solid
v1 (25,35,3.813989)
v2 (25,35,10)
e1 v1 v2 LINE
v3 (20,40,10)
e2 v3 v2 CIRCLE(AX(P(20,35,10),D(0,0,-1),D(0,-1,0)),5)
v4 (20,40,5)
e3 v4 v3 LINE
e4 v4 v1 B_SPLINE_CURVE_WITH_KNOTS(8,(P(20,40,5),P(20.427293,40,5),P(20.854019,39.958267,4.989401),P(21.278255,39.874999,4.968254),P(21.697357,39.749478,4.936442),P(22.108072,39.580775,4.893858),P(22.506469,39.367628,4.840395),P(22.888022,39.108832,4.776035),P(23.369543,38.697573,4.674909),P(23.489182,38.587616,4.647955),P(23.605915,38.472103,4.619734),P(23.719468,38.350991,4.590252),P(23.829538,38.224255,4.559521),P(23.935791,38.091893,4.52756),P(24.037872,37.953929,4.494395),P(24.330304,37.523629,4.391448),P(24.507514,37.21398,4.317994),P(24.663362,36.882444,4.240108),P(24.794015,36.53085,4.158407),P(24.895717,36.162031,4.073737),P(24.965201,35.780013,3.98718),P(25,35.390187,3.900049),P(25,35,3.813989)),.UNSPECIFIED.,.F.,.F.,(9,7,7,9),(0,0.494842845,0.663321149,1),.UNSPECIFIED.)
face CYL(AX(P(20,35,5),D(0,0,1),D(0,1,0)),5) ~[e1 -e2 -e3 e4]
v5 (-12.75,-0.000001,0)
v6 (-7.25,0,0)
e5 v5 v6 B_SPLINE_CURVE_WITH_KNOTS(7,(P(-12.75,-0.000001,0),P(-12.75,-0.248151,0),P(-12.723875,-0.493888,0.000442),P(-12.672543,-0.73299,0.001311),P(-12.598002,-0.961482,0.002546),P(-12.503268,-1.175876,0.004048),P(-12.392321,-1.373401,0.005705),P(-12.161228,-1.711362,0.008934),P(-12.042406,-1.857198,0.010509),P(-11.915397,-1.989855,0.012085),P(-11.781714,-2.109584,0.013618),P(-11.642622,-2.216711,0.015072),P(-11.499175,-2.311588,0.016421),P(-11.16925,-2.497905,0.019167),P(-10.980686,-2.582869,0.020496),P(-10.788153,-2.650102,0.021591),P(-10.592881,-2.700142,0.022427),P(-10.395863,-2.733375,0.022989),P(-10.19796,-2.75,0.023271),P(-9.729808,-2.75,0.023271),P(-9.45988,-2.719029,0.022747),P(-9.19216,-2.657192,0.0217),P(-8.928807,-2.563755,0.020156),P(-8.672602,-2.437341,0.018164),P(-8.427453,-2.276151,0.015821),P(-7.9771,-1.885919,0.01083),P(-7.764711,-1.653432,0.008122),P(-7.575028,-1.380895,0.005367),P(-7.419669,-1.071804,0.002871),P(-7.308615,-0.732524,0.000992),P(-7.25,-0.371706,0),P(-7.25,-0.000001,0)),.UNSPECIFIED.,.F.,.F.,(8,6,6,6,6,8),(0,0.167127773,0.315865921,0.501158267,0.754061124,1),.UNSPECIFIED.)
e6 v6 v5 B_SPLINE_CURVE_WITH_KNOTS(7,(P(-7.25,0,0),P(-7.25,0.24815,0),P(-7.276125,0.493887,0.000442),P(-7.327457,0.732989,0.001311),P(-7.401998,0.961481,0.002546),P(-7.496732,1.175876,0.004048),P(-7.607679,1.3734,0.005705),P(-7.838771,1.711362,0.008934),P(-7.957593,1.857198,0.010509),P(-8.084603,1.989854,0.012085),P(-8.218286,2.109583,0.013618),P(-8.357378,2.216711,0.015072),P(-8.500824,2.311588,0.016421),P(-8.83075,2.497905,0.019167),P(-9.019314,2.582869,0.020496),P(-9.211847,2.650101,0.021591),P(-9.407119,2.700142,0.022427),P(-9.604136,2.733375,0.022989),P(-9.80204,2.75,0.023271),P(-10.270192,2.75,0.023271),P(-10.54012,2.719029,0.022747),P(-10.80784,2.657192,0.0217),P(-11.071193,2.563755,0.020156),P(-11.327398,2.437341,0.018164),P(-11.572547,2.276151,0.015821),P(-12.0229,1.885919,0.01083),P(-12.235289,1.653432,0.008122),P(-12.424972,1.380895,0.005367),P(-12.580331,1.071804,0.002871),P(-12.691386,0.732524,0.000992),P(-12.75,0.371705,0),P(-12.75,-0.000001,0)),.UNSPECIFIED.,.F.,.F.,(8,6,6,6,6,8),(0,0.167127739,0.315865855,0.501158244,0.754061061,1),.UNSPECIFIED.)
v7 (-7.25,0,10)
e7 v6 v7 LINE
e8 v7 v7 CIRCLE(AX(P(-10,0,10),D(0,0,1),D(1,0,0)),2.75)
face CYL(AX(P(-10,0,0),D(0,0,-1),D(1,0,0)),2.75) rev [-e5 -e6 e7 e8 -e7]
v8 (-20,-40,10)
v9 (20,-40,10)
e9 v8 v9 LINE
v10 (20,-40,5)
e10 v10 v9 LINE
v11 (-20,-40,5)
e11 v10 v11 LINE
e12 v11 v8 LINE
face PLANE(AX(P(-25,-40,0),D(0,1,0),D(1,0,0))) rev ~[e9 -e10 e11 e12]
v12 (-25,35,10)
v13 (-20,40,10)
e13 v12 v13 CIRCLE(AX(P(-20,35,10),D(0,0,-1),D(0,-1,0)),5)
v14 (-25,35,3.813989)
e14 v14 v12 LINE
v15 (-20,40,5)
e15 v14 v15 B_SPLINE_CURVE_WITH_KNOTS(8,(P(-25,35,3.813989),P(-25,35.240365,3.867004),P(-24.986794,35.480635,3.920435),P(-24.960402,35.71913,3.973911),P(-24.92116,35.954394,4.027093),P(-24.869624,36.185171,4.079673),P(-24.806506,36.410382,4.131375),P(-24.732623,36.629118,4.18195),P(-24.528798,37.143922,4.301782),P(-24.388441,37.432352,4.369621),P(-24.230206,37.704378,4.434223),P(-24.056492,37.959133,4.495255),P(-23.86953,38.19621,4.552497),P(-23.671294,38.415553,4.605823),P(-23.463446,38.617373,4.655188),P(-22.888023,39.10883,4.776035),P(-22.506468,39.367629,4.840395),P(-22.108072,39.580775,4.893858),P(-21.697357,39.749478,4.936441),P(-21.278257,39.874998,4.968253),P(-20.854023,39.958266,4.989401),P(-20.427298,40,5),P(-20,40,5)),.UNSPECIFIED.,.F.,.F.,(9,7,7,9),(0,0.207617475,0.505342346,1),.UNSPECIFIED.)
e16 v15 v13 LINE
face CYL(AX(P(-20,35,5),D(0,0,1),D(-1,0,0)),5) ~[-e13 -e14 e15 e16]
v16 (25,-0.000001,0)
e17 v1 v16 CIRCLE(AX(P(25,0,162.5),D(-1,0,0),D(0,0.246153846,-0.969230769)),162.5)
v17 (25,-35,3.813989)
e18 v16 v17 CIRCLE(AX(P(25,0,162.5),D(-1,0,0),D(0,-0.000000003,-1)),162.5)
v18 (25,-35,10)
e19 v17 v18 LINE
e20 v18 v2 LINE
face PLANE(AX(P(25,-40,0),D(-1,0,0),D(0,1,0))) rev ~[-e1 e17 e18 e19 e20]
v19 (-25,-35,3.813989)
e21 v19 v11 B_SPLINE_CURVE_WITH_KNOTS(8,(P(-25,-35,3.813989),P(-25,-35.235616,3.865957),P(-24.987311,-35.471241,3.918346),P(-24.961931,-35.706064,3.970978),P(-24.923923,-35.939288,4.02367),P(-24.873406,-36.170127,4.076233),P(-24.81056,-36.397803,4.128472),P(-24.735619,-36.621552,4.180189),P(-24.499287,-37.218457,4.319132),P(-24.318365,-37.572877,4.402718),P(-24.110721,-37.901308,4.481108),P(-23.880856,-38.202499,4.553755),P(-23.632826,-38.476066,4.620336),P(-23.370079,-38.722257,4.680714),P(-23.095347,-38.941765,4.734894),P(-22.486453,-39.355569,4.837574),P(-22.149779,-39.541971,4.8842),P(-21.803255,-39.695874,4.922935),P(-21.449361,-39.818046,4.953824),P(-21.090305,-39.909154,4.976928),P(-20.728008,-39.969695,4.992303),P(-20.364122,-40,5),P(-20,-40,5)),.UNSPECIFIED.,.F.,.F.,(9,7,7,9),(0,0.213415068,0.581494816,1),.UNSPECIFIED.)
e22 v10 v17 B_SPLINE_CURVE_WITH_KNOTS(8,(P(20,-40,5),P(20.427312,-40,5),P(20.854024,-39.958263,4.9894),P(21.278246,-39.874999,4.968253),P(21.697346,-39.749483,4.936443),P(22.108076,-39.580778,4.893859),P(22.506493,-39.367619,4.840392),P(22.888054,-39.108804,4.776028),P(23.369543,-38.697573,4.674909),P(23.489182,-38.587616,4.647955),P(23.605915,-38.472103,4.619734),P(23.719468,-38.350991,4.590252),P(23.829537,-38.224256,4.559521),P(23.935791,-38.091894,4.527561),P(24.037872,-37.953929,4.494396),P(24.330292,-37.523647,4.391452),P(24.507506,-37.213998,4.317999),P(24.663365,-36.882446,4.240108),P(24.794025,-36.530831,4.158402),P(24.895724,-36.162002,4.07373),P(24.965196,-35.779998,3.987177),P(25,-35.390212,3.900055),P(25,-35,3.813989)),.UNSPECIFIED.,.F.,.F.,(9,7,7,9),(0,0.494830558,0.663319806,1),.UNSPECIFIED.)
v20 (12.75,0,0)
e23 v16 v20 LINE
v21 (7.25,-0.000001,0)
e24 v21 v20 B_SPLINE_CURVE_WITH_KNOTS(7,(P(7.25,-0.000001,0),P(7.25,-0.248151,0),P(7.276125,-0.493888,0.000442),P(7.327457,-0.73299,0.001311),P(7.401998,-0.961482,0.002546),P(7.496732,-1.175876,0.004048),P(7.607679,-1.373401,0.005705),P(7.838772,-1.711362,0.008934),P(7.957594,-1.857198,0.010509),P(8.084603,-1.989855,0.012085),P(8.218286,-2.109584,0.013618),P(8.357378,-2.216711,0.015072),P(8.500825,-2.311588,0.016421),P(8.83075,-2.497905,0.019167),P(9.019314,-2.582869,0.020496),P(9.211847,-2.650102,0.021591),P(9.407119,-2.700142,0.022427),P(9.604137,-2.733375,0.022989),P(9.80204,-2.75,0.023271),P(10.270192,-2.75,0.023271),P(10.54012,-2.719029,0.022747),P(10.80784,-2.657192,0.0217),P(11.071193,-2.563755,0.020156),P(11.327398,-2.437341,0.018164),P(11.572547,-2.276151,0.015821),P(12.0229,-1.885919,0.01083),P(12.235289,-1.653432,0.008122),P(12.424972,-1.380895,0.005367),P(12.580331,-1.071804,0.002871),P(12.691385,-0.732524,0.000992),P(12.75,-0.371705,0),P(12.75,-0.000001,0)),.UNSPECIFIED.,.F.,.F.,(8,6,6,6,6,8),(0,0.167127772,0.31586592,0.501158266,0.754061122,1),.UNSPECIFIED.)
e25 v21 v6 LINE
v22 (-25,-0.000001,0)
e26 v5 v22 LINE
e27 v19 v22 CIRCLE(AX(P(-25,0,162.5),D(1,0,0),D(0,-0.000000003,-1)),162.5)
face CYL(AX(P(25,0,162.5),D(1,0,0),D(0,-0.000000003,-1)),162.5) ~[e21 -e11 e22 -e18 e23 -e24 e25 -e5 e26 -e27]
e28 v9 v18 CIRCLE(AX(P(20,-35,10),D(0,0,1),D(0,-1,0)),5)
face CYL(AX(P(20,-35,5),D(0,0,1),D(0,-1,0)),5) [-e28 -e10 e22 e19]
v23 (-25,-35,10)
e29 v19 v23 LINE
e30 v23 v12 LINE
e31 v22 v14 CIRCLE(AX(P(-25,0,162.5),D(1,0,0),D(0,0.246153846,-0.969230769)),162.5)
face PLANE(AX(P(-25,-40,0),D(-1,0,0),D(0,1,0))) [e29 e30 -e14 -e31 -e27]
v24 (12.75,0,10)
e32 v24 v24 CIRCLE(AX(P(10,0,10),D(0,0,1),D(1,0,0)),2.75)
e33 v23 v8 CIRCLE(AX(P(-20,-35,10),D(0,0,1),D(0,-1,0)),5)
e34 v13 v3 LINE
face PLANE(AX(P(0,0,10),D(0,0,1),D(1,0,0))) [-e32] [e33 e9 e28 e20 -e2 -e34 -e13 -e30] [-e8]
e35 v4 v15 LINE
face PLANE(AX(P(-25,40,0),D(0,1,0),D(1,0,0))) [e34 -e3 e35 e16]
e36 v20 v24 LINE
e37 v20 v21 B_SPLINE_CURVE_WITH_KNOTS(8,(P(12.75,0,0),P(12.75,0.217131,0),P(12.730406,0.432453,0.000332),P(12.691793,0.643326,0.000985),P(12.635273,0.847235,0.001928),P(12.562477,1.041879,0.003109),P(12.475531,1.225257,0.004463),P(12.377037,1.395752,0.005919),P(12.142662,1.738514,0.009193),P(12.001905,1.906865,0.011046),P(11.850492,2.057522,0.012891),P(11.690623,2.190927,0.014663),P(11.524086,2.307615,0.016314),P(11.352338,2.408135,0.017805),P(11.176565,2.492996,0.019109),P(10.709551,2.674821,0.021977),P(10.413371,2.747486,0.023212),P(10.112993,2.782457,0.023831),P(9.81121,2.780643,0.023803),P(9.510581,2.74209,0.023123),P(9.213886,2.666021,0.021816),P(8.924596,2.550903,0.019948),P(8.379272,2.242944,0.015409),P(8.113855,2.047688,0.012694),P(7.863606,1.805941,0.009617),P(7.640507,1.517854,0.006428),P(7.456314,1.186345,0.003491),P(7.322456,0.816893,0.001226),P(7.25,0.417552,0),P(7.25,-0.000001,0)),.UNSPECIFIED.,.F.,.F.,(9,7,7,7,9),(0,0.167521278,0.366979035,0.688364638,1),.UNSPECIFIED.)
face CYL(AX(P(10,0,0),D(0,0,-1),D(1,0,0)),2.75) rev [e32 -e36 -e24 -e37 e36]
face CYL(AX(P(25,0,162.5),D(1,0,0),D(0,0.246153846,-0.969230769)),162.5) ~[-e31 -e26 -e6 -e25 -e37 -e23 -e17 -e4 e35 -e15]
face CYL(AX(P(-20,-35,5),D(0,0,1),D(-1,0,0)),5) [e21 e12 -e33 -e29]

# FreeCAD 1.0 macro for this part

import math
import FreeCAD as App
import Part
import Sketcher

V = App.Vector


def edges_at(feature, points):
    """Names of the edges that pass closest to the given points."""
    edges = feature.Shape.Edges
    near = lambda p: min(range(len(edges)), key=lambda i: edges[i].distToShape(Part.Vertex(*p))[0])
    return sorted({f"Edge{near(p) + 1}" for p in points})


def add_polygon(sketch, points):
    """Adds a closed chain of lines whose ends are joined by coincident constraints."""
    first, n = sketch.GeometryCount, len(points)
    for a, b in zip(points, points[1:] + points[:1]):
        sketch.addGeometry(Part.LineSegment(App.Vector(*a, 0), App.Vector(*b, 0)), False)
    for i in range(n):
        sketch.addConstraint(Sketcher.Constraint("Coincident", first + i, 2, first + (i + 1) % n, 1))

doc = App.newDocument("Part")
body = doc.addObject("PartDesign::Body", "Body")

# Sketch on XY plane
sketch1 = doc.addObject("Sketcher::SketchObject", "Sketch")
body.addObject(sketch1)
sketch1.AttachmentSupport = (doc.XY_Plane, [""])
sketch1.MapMode = "FlatFace"
add_polygon(sketch1, [(-25, 40), (-25, -40), (25, -40), (25, 40)])  # lines 0-3
sketch1.addGeometry(Part.Circle(V(-10, 0, 0), V(0, 0, 1), 2.8), False)  # 4
sketch1.addGeometry(Part.Circle(V(10, 0, 0), V(0, 0, 1), 2.8), False)  # 5
sketch1.addConstraint([
    Sketcher.Constraint("Vertical", 0),
    Sketcher.Constraint("Horizontal", 1),
    Sketcher.Constraint("Vertical", 2),
    Sketcher.Constraint("Horizontal", 3),
    Sketcher.Constraint("Equal", 4, 5),
    Sketcher.Constraint("Symmetric", 4, 3, 5, 3, -1, 1),
    Sketcher.Constraint("Symmetric", 0, 2, 2, 2, -1, 1),
    Sketcher.Constraint("PointOnObject", 4, 3, -1),
    Sketcher.Constraint("Diameter", 4, 5.5),
    Sketcher.Constraint("DistanceX", 1, 1, 1, 2, 50.0),
    Sketcher.Constraint("DistanceY", 0, 2, 0, 1, 80.0),
    Sketcher.Constraint("DistanceX", 4, 3, -1, 1, 10.0),
])
pad1 = doc.addObject("PartDesign::Pad", "Pad")
body.addObject(pad1)
pad1.Profile = sketch1
pad1.Length = 10

# Sketch on YZ plane
sketch2 = doc.addObject("Sketcher::SketchObject", "Sketch001")
body.addObject(sketch2)
sketch2.AttachmentSupport = (doc.YZ_Plane, [""])
sketch2.MapMode = "FlatFace"
sketch2.AttachmentOffset = App.Placement(V(0, 0, 25), App.Rotation())
sketch2.addGeometry([
    Part.ArcOfCircle(Part.Circle(V(0, 162, 0), V(0, 0, 1), 162), math.radians(-90), math.radians(-75.75)),  # 0
    Part.LineSegment(V(0, 0, 0), V(40, 0, 0)),  # 1
    Part.LineSegment(V(40, 0, 0), V(40, 5, 0)),  # 2
    Part.ArcOfCircle(Part.Circle(V(0, 163, 0), V(0, 0, 1), 163), math.radians(-104.25), math.radians(-90)),  # 3
    Part.LineSegment(V(-40, 5, 0), V(-40, 0, 0)),  # 4
    Part.LineSegment(V(-40, 0, 0), V(0, 0, 0)),  # 5
], False)
sketch2.addConstraint([
    Sketcher.Constraint("Tangent", 0, 1, 1, 1),
    Sketcher.Constraint("Coincident", 1, 2, 2, 1),
    Sketcher.Constraint("Coincident", 2, 2, 0, 2),
    Sketcher.Constraint("Coincident", 3, 1, 4, 1),
    Sketcher.Constraint("Coincident", 4, 2, 5, 1),
    Sketcher.Constraint("Tangent", 5, 2, 3, 2),
    Sketcher.Constraint("Horizontal", 1),
    Sketcher.Constraint("Vertical", 2),
    Sketcher.Constraint("Vertical", 4),
    Sketcher.Constraint("Horizontal", 5),
    Sketcher.Constraint("Coincident", 0, 1, -1, 1),
    Sketcher.Constraint("Coincident", 5, 2, -1, 1),
    Sketcher.Constraint("Equal", 0, 3),
    Sketcher.Constraint("Horizontal", 2, 2, 3, 1),
    Sketcher.Constraint("Radius", 0, 162.5),
    Sketcher.Constraint("DistanceX", 1, 1, 1, 2, 40.000001),
])
pocket1 = doc.addObject("PartDesign::Pocket", "Pocket")
body.addObject(pocket1)
pocket1.Profile = sketch2
pocket1.Type = "ThroughAll"
doc.recompute()

fillet = doc.addObject("PartDesign::Fillet", "Fillet")
body.addObject(fillet)
fillet.Base = (pocket1, edges_at(pocket1, [
    (25, -40, 7.5),
    (-25, -40, 7.5),
    (25, 40, 7.5),
    (-25, 40, 7.5),
]))
fillet.Radius = 5

doc.recompute()
